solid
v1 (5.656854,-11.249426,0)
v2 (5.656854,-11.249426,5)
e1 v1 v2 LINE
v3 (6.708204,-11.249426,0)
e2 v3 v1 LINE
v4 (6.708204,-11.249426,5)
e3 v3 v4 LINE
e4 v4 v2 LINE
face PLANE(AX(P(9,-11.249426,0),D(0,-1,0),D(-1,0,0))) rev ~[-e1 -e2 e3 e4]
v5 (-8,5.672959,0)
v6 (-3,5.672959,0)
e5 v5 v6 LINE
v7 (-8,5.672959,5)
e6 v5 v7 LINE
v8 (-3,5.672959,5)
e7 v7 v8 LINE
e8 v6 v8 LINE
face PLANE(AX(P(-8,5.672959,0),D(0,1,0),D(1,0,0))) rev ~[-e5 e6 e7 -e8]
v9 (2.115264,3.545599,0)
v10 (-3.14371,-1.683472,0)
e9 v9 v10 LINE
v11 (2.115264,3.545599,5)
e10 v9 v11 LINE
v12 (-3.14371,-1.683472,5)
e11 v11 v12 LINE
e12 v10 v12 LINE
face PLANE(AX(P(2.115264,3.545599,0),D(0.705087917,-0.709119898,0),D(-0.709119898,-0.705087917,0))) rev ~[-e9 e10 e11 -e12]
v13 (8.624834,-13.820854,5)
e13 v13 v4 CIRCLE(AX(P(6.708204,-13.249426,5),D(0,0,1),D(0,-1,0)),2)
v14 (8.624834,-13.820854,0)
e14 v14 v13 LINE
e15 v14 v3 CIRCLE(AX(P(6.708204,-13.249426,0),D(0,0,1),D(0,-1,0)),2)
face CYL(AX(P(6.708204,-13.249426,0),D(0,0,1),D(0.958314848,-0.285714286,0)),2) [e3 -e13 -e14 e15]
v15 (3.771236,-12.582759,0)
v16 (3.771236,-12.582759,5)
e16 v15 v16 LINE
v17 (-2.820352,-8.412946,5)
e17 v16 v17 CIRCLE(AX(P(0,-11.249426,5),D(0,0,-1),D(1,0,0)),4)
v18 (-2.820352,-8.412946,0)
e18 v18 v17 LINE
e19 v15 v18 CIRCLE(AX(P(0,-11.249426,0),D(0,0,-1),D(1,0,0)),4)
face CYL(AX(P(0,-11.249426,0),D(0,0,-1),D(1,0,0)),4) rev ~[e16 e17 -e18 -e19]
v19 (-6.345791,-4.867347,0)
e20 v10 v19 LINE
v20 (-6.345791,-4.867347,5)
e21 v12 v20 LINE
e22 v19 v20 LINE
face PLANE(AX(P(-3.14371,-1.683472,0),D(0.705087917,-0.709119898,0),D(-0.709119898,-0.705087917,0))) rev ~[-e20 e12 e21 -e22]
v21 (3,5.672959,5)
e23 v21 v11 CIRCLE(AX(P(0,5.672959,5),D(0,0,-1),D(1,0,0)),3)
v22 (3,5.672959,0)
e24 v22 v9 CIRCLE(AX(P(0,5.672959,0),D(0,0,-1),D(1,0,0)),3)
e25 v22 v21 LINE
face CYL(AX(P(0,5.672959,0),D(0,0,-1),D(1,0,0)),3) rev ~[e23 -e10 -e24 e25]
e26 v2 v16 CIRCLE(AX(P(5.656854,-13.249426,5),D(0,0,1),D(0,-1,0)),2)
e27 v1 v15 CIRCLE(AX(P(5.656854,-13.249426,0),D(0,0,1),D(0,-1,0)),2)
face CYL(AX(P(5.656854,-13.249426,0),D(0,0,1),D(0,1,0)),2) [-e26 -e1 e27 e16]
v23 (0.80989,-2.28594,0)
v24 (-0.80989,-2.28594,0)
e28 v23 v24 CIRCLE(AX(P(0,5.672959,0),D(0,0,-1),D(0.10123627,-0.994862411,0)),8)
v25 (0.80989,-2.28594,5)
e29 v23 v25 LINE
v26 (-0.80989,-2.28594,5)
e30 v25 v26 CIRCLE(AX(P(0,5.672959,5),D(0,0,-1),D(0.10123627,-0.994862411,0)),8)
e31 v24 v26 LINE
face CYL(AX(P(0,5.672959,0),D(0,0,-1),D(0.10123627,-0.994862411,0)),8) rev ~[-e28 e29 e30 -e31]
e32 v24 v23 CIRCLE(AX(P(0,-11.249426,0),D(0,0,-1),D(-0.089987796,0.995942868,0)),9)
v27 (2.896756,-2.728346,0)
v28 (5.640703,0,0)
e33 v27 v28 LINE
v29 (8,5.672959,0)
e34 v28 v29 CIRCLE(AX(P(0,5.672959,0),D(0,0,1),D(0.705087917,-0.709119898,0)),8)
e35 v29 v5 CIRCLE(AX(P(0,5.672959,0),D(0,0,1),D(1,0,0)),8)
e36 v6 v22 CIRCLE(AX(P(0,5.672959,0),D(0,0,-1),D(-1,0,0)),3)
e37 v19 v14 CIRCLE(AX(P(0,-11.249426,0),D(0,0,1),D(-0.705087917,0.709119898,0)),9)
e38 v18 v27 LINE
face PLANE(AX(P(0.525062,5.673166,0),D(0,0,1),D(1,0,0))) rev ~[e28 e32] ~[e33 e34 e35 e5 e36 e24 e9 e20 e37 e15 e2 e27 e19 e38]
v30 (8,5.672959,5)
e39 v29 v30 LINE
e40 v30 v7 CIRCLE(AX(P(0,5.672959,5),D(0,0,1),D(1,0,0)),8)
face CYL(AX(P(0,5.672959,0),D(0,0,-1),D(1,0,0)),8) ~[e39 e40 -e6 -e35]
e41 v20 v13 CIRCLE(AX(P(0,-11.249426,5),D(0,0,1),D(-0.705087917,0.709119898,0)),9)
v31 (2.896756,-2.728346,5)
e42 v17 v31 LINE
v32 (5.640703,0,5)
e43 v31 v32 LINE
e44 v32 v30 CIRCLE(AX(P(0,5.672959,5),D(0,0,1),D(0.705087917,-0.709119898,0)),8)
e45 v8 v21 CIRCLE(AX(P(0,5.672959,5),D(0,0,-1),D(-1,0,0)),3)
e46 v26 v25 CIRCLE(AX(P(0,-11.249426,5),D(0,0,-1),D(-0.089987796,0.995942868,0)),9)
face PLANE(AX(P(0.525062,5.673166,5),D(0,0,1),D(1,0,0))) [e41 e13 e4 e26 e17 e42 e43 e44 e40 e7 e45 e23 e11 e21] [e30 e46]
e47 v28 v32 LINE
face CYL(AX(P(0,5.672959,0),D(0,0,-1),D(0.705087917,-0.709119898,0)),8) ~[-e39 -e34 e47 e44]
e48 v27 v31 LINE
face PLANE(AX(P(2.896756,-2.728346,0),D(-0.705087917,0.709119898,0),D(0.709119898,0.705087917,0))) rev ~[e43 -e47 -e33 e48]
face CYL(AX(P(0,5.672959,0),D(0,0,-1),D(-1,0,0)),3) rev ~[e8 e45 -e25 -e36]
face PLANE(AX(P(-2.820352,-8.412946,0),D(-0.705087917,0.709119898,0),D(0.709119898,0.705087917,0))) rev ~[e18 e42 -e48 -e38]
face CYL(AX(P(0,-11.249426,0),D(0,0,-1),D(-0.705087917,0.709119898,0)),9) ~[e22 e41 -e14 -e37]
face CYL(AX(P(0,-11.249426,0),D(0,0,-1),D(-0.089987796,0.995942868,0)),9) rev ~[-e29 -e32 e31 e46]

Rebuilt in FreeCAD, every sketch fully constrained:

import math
import FreeCAD as App
import Part
import Sketcher
from FreeCAD import Vector
Q = App.Units.Quantity


def edges_at(feature, points):
    """Names of the edges that pass closest to the given points."""
    edges = feature.Shape.Edges
    near = lambda p: min(range(len(edges)), key=lambda i: edges[i].distToShape(Part.Vertex(*p))[0])
    return sorted({f"Edge{near(p) + 1}" for p in points})

doc = App.newDocument("Part")
params = doc.addObject("Spreadsheet::Sheet", "Params")
for row, (alias, value) in enumerate([
    ("sketch1_radius", "3 mm"),
    ("sketch1_radius2", "9 mm"),
    ("sketch1_radius3", "4 mm"),
    ("pad1_length", "5 mm"),
    ("fillet_radius", "2 mm"),
], start=1):
    params.set(f"A{row}", alias)
    params.set(f"B{row}", "=" + value)
    params.setAlias(f"B{row}", alias)

body = doc.addObject("PartDesign::Body", "Body")

# Sketch on XY plane
sketch1 = doc.addObject("Sketcher::SketchObject", "Sketch")
body.addObject(sketch1)
sketch1.AttachmentSupport = (doc.XY_Plane, [""])
sketch1.MapMode = "FlatFace"
sketch1.addGeometry([
    Part.ArcOfCircle(Part.Circle(Vector(0, 5.7, 0), Vector(0, 0, 1), 3), math.radians(0), math.radians(180)),  # 0
    Part.ArcOfCircle(Part.Circle(Vector(0, 5.7, 0), Vector(0, 0, 1), 3), math.radians(-45), math.radians(0)),  # 1
    Part.LineSegment(Vector(2.1, 3.5, 0), Vector(-3.1, -1.7, 0)),  # 2
    Part.LineSegment(Vector(-3.1, -1.7, 0), Vector(-6.3, -4.9, 0)),  # 3
    Part.ArcOfCircle(Part.Circle(Vector(0, -11.2, 0), Vector(0, 0, 1), 9), math.radians(135), math.radians(360)),  # 4
    Part.LineSegment(Vector(9, -11.2, 0), Vector(4, -11.2, 0)),  # 5
    Part.ArcOfCircle(Part.Circle(Vector(0, -11.2, 0), Vector(0, 0, 1), 4), math.radians(135), math.radians(360)),  # 6
    Part.LineSegment(Vector(-2.8, -8.4, 0), Vector(2.9, -2.7, 0)),  # 7
    Part.LineSegment(Vector(2.9, -2.7, 0), Vector(5.6, 0, 0)),  # 8
    Part.ArcOfCircle(Part.Circle(Vector(0, 5.7, 0), Vector(0, 0, 1), 8), math.radians(-45), math.radians(0)),  # 9
    Part.ArcOfCircle(Part.Circle(Vector(0, 5.7, 0), Vector(0, 0, 1), 8), math.radians(0), math.radians(180)),  # 10
    Part.LineSegment(Vector(-8, 5.7, 0), Vector(-3, 5.7, 0)),  # 11
    Part.ArcOfCircle(Part.Circle(Vector(0, -11.2, 0), Vector(0, 0, 1), 9), math.radians(84.84), math.radians(95.16)),  # 12
    Part.ArcOfCircle(Part.Circle(Vector(0, 5.7, 0), Vector(0, 0, 1), 8), math.radians(-95.81), math.radians(-84.19)),  # 13
], False)
sketch1.addConstraint([
    Sketcher.Constraint("Tangent", 0, 1, 1, 2),
    Sketcher.Constraint("Tangent", 1, 1, 2, 1),
    Sketcher.Constraint("Coincident", 2, 2, 3, 1),
    Sketcher.Constraint("Tangent", 3, 2, 4, 1),
    Sketcher.Constraint("Coincident", 4, 2, 5, 1),
    Sketcher.Constraint("Coincident", 5, 2, 6, 2),
    Sketcher.Constraint("Tangent", 6, 1, 7, 1),
    Sketcher.Constraint("Coincident", 7, 2, 8, 1),
    Sketcher.Constraint("Tangent", 8, 2, 9, 1),
    Sketcher.Constraint("Tangent", 9, 2, 10, 1),
    Sketcher.Constraint("Coincident", 10, 2, 11, 1),
    Sketcher.Constraint("Coincident", 11, 2, 0, 2),
    Sketcher.Constraint("Coincident", 12, 1, 13, 2),
    Sketcher.Constraint("Coincident", 13, 1, 12, 2),
    Sketcher.Constraint("Horizontal", 5),
    Sketcher.Constraint("Horizontal", 11),
    Sketcher.Constraint("Coincident", 6, 3, 4, 3),
    Sketcher.Constraint("Coincident", 9, 3, 0, 3),
    Sketcher.Constraint("Coincident", 12, 3, 4, 3),
    Sketcher.Constraint("Coincident", 13, 3, 0, 3),
    Sketcher.Constraint("Equal", 0, 1),
    Sketcher.Constraint("Equal", 9, 10),
    Sketcher.Constraint("Equal", 4, 12),
    Sketcher.Constraint("Equal", 10, 13),
    Sketcher.Constraint("Symmetric", 9, 2, 10, 2, -2),
    Sketcher.Constraint("PointOnObject", 4, 3, -2),
    Sketcher.Constraint("PointOnObject", 8, 2, -1),
    Sketcher.Constraint("Parallel", 2, 3),
    Sketcher.Constraint("Parallel", 3, 7),
    Sketcher.Constraint("Parallel", 7, 8),
    Sketcher.Constraint("Horizontal", 13, 3, 0, 1),
    Sketcher.Constraint("Horizontal", 12, 3, 4, 2),
    Sketcher.Constraint("Horizontal", 0, 1, 9, 2),
    Sketcher.Constraint("Radius", 0, Q("3 mm")),
    Sketcher.Constraint("Radius", 4, Q("9 mm")),
    Sketcher.Constraint("Radius", 6, Q("4 mm")),
    Sketcher.Constraint("Distance", 2, Q("7.416198 mm")),
    Sketcher.Constraint("DistanceY", -1, 1, 1, 1, Q("3.545599 mm")),
    Sketcher.Constraint("DistanceY", 6, 1, 7, 2, Q("5.684601 mm")),
])
sketch1.setExpression("Constraints[33]", "Params.sketch1_radius")
sketch1.setExpression("Constraints[34]", "Params.sketch1_radius2")
sketch1.setExpression("Constraints[35]", "Params.sketch1_radius3")
pad1 = doc.addObject("PartDesign::Pad", "Pad")
body.addObject(pad1)
pad1.Profile = sketch1
pad1.setExpression("Length", "Params.pad1_length")
doc.recompute()

fillet = doc.addObject("PartDesign::Fillet", "Fillet")
body.addObject(fillet)
fillet.Base = (pad1, edges_at(pad1, [(4, -11.249, 2.5), (9, -11.249, 2.5)]))
fillet.setExpression("Radius", "Params.fillet_radius")

doc.recompute()
